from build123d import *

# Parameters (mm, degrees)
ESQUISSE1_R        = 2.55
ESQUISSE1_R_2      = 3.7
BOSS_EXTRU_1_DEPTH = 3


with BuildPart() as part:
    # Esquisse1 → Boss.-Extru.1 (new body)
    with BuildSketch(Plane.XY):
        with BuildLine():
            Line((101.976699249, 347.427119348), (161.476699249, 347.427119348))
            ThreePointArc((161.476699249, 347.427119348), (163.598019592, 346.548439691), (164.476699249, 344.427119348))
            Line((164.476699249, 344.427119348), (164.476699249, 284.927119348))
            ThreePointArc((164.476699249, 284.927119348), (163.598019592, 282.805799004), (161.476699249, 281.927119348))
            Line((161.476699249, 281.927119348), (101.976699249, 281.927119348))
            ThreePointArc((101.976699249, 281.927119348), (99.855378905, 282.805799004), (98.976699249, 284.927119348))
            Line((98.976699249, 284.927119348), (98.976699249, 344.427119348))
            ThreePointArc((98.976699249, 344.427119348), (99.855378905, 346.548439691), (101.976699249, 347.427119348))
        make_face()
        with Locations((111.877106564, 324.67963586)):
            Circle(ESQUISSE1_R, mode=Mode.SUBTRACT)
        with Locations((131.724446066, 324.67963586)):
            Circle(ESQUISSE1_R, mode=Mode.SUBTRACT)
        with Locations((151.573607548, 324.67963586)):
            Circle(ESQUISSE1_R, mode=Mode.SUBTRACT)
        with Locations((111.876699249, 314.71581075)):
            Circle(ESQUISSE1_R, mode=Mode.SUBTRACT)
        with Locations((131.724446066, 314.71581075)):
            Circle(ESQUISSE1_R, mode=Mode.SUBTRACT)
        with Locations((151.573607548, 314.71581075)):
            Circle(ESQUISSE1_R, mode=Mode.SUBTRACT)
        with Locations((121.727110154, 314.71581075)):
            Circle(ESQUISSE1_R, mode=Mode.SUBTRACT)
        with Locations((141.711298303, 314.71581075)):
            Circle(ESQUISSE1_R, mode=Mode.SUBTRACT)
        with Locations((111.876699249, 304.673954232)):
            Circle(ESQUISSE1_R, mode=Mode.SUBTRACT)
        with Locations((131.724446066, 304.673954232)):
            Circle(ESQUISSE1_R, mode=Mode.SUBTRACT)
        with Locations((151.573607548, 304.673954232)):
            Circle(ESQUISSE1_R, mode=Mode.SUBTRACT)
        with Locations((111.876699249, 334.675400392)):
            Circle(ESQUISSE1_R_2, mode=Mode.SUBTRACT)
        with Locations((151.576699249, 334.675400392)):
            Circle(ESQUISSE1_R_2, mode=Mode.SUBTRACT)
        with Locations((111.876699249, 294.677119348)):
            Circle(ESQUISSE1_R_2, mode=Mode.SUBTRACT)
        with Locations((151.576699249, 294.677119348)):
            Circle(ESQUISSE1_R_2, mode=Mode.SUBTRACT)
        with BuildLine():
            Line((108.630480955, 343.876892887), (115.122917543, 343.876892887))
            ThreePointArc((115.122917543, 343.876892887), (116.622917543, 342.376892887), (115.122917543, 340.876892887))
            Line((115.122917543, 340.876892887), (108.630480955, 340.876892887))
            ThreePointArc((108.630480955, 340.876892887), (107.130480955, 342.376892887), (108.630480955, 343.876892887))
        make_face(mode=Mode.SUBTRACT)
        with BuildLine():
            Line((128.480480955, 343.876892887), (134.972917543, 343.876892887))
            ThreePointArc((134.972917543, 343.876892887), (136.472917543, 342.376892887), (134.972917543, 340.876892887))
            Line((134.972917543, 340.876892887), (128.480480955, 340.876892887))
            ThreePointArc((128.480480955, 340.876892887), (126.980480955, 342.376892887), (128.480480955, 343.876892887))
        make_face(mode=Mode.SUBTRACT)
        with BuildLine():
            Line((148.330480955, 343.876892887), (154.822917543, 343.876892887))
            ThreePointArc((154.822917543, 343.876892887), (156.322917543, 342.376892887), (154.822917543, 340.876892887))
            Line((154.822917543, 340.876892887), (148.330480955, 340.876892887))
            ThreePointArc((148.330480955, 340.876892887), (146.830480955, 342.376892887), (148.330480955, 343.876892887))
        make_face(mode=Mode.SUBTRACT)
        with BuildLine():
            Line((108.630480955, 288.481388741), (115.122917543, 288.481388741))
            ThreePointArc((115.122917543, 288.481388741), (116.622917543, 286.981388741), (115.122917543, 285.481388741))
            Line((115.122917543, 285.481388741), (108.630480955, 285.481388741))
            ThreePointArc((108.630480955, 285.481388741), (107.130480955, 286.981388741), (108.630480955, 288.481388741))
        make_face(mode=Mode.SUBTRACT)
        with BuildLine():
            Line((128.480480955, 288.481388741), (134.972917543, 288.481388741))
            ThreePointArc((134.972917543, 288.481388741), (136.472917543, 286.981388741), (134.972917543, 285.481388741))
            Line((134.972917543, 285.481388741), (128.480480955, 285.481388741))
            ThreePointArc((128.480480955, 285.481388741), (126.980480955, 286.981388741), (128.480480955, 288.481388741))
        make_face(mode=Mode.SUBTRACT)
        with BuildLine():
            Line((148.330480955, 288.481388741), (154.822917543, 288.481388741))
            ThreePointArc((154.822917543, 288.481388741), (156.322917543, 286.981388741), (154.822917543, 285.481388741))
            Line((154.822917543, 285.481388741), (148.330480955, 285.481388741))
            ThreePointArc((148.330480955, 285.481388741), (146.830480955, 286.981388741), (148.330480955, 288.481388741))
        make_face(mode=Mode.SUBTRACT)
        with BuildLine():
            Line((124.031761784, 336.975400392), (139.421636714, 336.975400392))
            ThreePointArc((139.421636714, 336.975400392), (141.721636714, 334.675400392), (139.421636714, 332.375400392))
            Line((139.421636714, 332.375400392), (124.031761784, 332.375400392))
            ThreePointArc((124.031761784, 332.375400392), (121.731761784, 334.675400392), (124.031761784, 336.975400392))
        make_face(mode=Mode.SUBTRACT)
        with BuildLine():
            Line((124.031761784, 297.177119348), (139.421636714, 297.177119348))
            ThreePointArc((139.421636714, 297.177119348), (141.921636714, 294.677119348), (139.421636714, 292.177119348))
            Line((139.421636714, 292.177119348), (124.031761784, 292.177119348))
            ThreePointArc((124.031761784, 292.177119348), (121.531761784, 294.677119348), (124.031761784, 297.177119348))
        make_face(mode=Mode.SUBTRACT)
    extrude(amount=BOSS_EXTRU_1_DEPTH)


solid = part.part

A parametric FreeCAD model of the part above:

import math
import FreeCAD as App
import Part
import Sketcher
Q = App.Units.Quantity

doc = App.newDocument("Part")
body = doc.addObject("PartDesign::Body", "Body")

# Sketch on XY plane
sketch1 = doc.addObject("Sketcher::SketchObject", "Sketch")
body.addObject(sketch1)
sketch1.AttachmentSupport = (doc.XY_Plane, [""])
sketch1.MapMode = "FlatFace"
sketch1.addGeometry(Part.LineSegment(App.Vector(161.5, 347.4, 0), App.Vector(102, 347.4, 0)), False)
sketch1.addGeometry(Part.ArcOfCircle(Part.Circle(App.Vector(102, 344.4, 0), App.Vector(0, 0, 1), 3), math.radians(90), math.radians(180)), False)
sketch1.addGeometry(Part.LineSegment(App.Vector(99, 344.4, 0), App.Vector(99, 284.9, 0)), False)
sketch1.addGeometry(Part.ArcOfCircle(Part.Circle(App.Vector(102, 284.9, 0), App.Vector(0, 0, 1), 3), math.radians(180), math.radians(270)), False)
sketch1.addGeometry(Part.LineSegment(App.Vector(102, 281.9, 0), App.Vector(161.5, 281.9, 0)), False)
sketch1.addGeometry(Part.ArcOfCircle(Part.Circle(App.Vector(161.5, 284.9, 0), App.Vector(0, 0, 1), 3), math.radians(-90), math.radians(0)), False)
sketch1.addGeometry(Part.LineSegment(App.Vector(164.5, 284.9, 0), App.Vector(164.5, 344.4, 0)), False)
sketch1.addGeometry(Part.ArcOfCircle(Part.Circle(App.Vector(161.5, 344.4, 0), App.Vector(0, 0, 1), 3), math.radians(0), math.radians(90)), False)
sketch1.addGeometry(Part.LineSegment(App.Vector(148.3, 288.5, 0), App.Vector(154.8, 288.5, 0)), False)
sketch1.addGeometry(Part.ArcOfCircle(Part.Circle(App.Vector(154.8, 287, 0), App.Vector(0, 0, 1), 1.5), math.radians(-90), math.radians(90)), False)
sketch1.addGeometry(Part.LineSegment(App.Vector(154.8, 285.5, 0), App.Vector(148.3, 285.5, 0)), False)
sketch1.addGeometry(Part.ArcOfCircle(Part.Circle(App.Vector(148.3, 287, 0), App.Vector(0, 0, 1), 1.5), math.radians(90), math.radians(270)), False)
sketch1.addGeometry(Part.Circle(App.Vector(151.6, 294.7, 0), App.Vector(0, 0, 1), 3.7), False)
sketch1.addGeometry(Part.LineSegment(App.Vector(128.5, 288.5, 0), App.Vector(135, 288.5, 0)), False)
sketch1.addGeometry(Part.ArcOfCircle(Part.Circle(App.Vector(135, 287, 0), App.Vector(0, 0, 1), 1.5), math.radians(-90), math.radians(90)), False)
sketch1.addGeometry(Part.LineSegment(App.Vector(135, 285.5, 0), App.Vector(128.5, 285.5, 0)), False)
sketch1.addGeometry(Part.ArcOfCircle(Part.Circle(App.Vector(128.5, 287, 0), App.Vector(0, 0, 1), 1.5), math.radians(90), math.radians(270)), False)
sketch1.addGeometry(Part.LineSegment(App.Vector(124, 297.2, 0), App.Vector(139.4, 297.2, 0)), False)
sketch1.addGeometry(Part.ArcOfCircle(Part.Circle(App.Vector(139.4, 294.7, 0), App.Vector(0, 0, 1), 2.5), math.radians(-90), math.radians(90)), False)
sketch1.addGeometry(Part.LineSegment(App.Vector(139.4, 292.2, 0), App.Vector(124, 292.2, 0)), False)
sketch1.addGeometry(Part.ArcOfCircle(Part.Circle(App.Vector(124, 294.7, 0), App.Vector(0, 0, 1), 2.5), math.radians(90), math.radians(270)), False)
sketch1.addGeometry(Part.Circle(App.Vector(151.6, 304.7, 0), App.Vector(0, 0, 1), 2.5), False)
sketch1.addGeometry(Part.LineSegment(App.Vector(108.6, 288.5, 0), App.Vector(115.1, 288.5, 0)), False)
sketch1.addGeometry(Part.ArcOfCircle(Part.Circle(App.Vector(115.1, 287, 0), App.Vector(0, 0, 1), 1.5), math.radians(-90), math.radians(90)), False)
sketch1.addGeometry(Part.LineSegment(App.Vector(115.1, 285.5, 0), App.Vector(108.6, 285.5, 0)), False)
sketch1.addGeometry(Part.ArcOfCircle(Part.Circle(App.Vector(108.6, 287, 0), App.Vector(0, 0, 1), 1.5), math.radians(90), math.radians(270)), False)
sketch1.addGeometry(Part.Circle(App.Vector(111.9, 294.7, 0), App.Vector(0, 0, 1), 3.7), False)
sketch1.addGeometry(Part.Circle(App.Vector(131.7, 304.7, 0), App.Vector(0, 0, 1), 2.5), False)
sketch1.addGeometry(Part.Circle(App.Vector(111.9, 304.7, 0), App.Vector(0, 0, 1), 2.5), False)
sketch1.addGeometry(Part.Circle(App.Vector(151.6, 314.7, 0), App.Vector(0, 0, 1), 2.5), False)
sketch1.addGeometry(Part.Circle(App.Vector(151.6, 324.7, 0), App.Vector(0, 0, 1), 2.5), False)
sketch1.addGeometry(Part.Circle(App.Vector(141.7, 314.7, 0), App.Vector(0, 0, 1), 2.5), False)
sketch1.addGeometry(Part.Circle(App.Vector(151.6, 334.7, 0), App.Vector(0, 0, 1), 3.7), False)
sketch1.addGeometry(Part.LineSegment(App.Vector(148.3, 343.9, 0), App.Vector(154.8, 343.9, 0)), False)
sketch1.addGeometry(Part.ArcOfCircle(Part.Circle(App.Vector(154.8, 342.4, 0), App.Vector(0, 0, 1), 1.5), math.radians(-90), math.radians(90)), False)
sketch1.addGeometry(Part.LineSegment(App.Vector(154.8, 340.9, 0), App.Vector(148.3, 340.9, 0)), False)
sketch1.addGeometry(Part.ArcOfCircle(Part.Circle(App.Vector(148.3, 342.4, 0), App.Vector(0, 0, 1), 1.5), math.radians(90), math.radians(270)), False)
sketch1.addGeometry(Part.LineSegment(App.Vector(124, 337, 0), App.Vector(139.4, 337, 0)), False)
sketch1.addGeometry(Part.ArcOfCircle(Part.Circle(App.Vector(139.4, 334.7, 0), App.Vector(0, 0, 1), 2.3), math.radians(-90), math.radians(90)), False)
sketch1.addGeometry(Part.LineSegment(App.Vector(139.4, 332.4, 0), App.Vector(124, 332.4, 0)), False)
sketch1.addGeometry(Part.ArcOfCircle(Part.Circle(App.Vector(124, 334.7, 0), App.Vector(0, 0, 1), 2.3), math.radians(90), math.radians(270)), False)
sketch1.addGeometry(Part.LineSegment(App.Vector(128.5, 343.9, 0), App.Vector(135, 343.9, 0)), False)
sketch1.addGeometry(Part.ArcOfCircle(Part.Circle(App.Vector(135, 342.4, 0), App.Vector(0, 0, 1), 1.5), math.radians(-90), math.radians(90)), False)
sketch1.addGeometry(Part.LineSegment(App.Vector(135, 340.9, 0), App.Vector(128.5, 340.9, 0)), False)
sketch1.addGeometry(Part.ArcOfCircle(Part.Circle(App.Vector(128.5, 342.4, 0), App.Vector(0, 0, 1), 1.5), math.radians(90), math.radians(270)), False)
sketch1.addGeometry(Part.Circle(App.Vector(131.7, 314.7, 0), App.Vector(0, 0, 1), 2.5), False)
sketch1.addGeometry(Part.Circle(App.Vector(121.7, 314.7, 0), App.Vector(0, 0, 1), 2.5), False)
sketch1.addGeometry(Part.Circle(App.Vector(131.7, 324.7, 0), App.Vector(0, 0, 1), 2.5), False)
sketch1.addGeometry(Part.Circle(App.Vector(111.9, 314.7, 0), App.Vector(0, 0, 1), 2.5), False)
sketch1.addGeometry(Part.Circle(App.Vector(111.9, 324.7, 0), App.Vector(0, 0, 1), 2.5), False)
sketch1.addGeometry(Part.Circle(App.Vector(111.9, 334.7, 0), App.Vector(0, 0, 1), 3.7), False)
sketch1.addGeometry(Part.LineSegment(App.Vector(108.6, 343.9, 0), App.Vector(115.1, 343.9, 0)), False)
sketch1.addGeometry(Part.ArcOfCircle(Part.Circle(App.Vector(115.1, 342.4, 0), App.Vector(0, 0, 1), 1.5), math.radians(-90), math.radians(90)), False)
sketch1.addGeometry(Part.LineSegment(App.Vector(115.1, 340.9, 0), App.Vector(108.6, 340.9, 0)), False)
sketch1.addGeometry(Part.ArcOfCircle(Part.Circle(App.Vector(108.6, 342.4, 0), App.Vector(0, 0, 1), 1.5), math.radians(90), math.radians(270)), False)
sketch1.addConstraint(Sketcher.Constraint("Tangent", 0, 2, 1, 1))
sketch1.addConstraint(Sketcher.Constraint("Tangent", 1, 2, 2, 1))
sketch1.addConstraint(Sketcher.Constraint("Tangent", 2, 2, 3, 1))
sketch1.addConstraint(Sketcher.Constraint("Tangent", 3, 2, 4, 1))
sketch1.addConstraint(Sketcher.Constraint("Tangent", 4, 2, 5, 1))
sketch1.addConstraint(Sketcher.Constraint("Tangent", 5, 2, 6, 1))
sketch1.addConstraint(Sketcher.Constraint("Tangent", 6, 2, 7, 1))
sketch1.addConstraint(Sketcher.Constraint("Tangent", 7, 2, 0, 1))
sketch1.addConstraint(Sketcher.Constraint("Tangent", 8, 2, 9, 2))
sketch1.addConstraint(Sketcher.Constraint("Tangent", 9, 1, 10, 1))
sketch1.addConstraint(Sketcher.Constraint("Tangent", 10, 2, 11, 2))
sketch1.addConstraint(Sketcher.Constraint("Tangent", 11, 1, 8, 1))
sketch1.addConstraint(Sketcher.Constraint("Tangent", 13, 2, 14, 2))
sketch1.addConstraint(Sketcher.Constraint("Tangent", 14, 1, 15, 1))
sketch1.addConstraint(Sketcher.Constraint("Tangent", 15, 2, 16, 2))
sketch1.addConstraint(Sketcher.Constraint("Tangent", 16, 1, 13, 1))
sketch1.addConstraint(Sketcher.Constraint("Tangent", 17, 2, 18, 2))
sketch1.addConstraint(Sketcher.Constraint("Tangent", 18, 1, 19, 1))
sketch1.addConstraint(Sketcher.Constraint("Tangent", 19, 2, 20, 2))
sketch1.addConstraint(Sketcher.Constraint("Tangent", 20, 1, 17, 1))
sketch1.addConstraint(Sketcher.Constraint("Tangent", 22, 2, 23, 2))
sketch1.addConstraint(Sketcher.Constraint("Tangent", 23, 1, 24, 1))
sketch1.addConstraint(Sketcher.Constraint("Tangent", 24, 2, 25, 2))
sketch1.addConstraint(Sketcher.Constraint("Tangent", 25, 1, 22, 1))
sketch1.addConstraint(Sketcher.Constraint("Tangent", 33, 2, 34, 2))
sketch1.addConstraint(Sketcher.Constraint("Tangent", 34, 1, 35, 1))
sketch1.addConstraint(Sketcher.Constraint("Tangent", 35, 2, 36, 2))
sketch1.addConstraint(Sketcher.Constraint("Tangent", 36, 1, 33, 1))
sketch1.addConstraint(Sketcher.Constraint("Tangent", 37, 2, 38, 2))
sketch1.addConstraint(Sketcher.Constraint("Tangent", 38, 1, 39, 1))
sketch1.addConstraint(Sketcher.Constraint("Tangent", 39, 2, 40, 2))
sketch1.addConstraint(Sketcher.Constraint("Tangent", 40, 1, 37, 1))
sketch1.addConstraint(Sketcher.Constraint("Tangent", 41, 2, 42, 2))
sketch1.addConstraint(Sketcher.Constraint("Tangent", 42, 1, 43, 1))
sketch1.addConstraint(Sketcher.Constraint("Tangent", 43, 2, 44, 2))
sketch1.addConstraint(Sketcher.Constraint("Tangent", 44, 1, 41, 1))
sketch1.addConstraint(Sketcher.Constraint("Tangent", 51, 2, 52, 2))
sketch1.addConstraint(Sketcher.Constraint("Tangent", 52, 1, 53, 1))
sketch1.addConstraint(Sketcher.Constraint("Tangent", 53, 2, 54, 2))
sketch1.addConstraint(Sketcher.Constraint("Tangent", 54, 1, 51, 1))
sketch1.addConstraint(Sketcher.Constraint("Horizontal", 0))
sketch1.addConstraint(Sketcher.Constraint("Vertical", 2))
sketch1.addConstraint(Sketcher.Constraint("Horizontal", 4))
sketch1.addConstraint(Sketcher.Constraint("Vertical", 6))
sketch1.addConstraint(Sketcher.Constraint("Horizontal", 8))
sketch1.addConstraint(Sketcher.Constraint("Horizontal", 10))
sketch1.addConstraint(Sketcher.Constraint("Horizontal", 13))
sketch1.addConstraint(Sketcher.Constraint("Horizontal", 15))
sketch1.addConstraint(Sketcher.Constraint("Horizontal", 17))
sketch1.addConstraint(Sketcher.Constraint("Horizontal", 19))
sketch1.addConstraint(Sketcher.Constraint("Horizontal", 22))
sketch1.addConstraint(Sketcher.Constraint("Horizontal", 24))
sketch1.addConstraint(Sketcher.Constraint("Horizontal", 33))
sketch1.addConstraint(Sketcher.Constraint("Horizontal", 35))
sketch1.addConstraint(Sketcher.Constraint("Horizontal", 37))
sketch1.addConstraint(Sketcher.Constraint("Horizontal", 39))
sketch1.addConstraint(Sketcher.Constraint("Horizontal", 41))
sketch1.addConstraint(Sketcher.Constraint("Horizontal", 43))
sketch1.addConstraint(Sketcher.Constraint("Horizontal", 51))
sketch1.addConstraint(Sketcher.Constraint("Horizontal", 53))
sketch1.addConstraint(Sketcher.Constraint("Equal", 1, 3))
sketch1.addConstraint(Sketcher.Constraint("Equal", 3, 5))
sketch1.addConstraint(Sketcher.Constraint("Equal", 5, 7))
sketch1.addConstraint(Sketcher.Constraint("Equal", 11, 14))
sketch1.addConstraint(Sketcher.Constraint("Equal", 16, 23))
sketch1.addConstraint(Sketcher.Constraint("Equal", 12, 26))
sketch1.addConstraint(Sketcher.Constraint("Equal", 21, 27))
sketch1.addConstraint(Sketcher.Constraint("Equal", 27, 28))
sketch1.addConstraint(Sketcher.Constraint("Equal", 28, 29))
sketch1.addConstraint(Sketcher.Constraint("Equal", 29, 30))
sketch1.addConstraint(Sketcher.Constraint("Equal", 30, 31))
sketch1.addConstraint(Sketcher.Constraint("Equal", 26, 32))
sketch1.addConstraint(Sketcher.Constraint("Equal", 25, 34))
sketch1.addConstraint(Sketcher.Constraint("Equal", 36, 42))
sketch1.addConstraint(Sketcher.Constraint("Equal", 31, 45))
sketch1.addConstraint(Sketcher.Constraint("Equal", 45, 46))
sketch1.addConstraint(Sketcher.Constraint("Equal", 46, 47))
sketch1.addConstraint(Sketcher.Constraint("Equal", 47, 48))
sketch1.addConstraint(Sketcher.Constraint("Equal", 48, 49))
sketch1.addConstraint(Sketcher.Constraint("Equal", 32, 50))
sketch1.addConstraint(Sketcher.Constraint("Equal", 44, 52))
sketch1.addConstraint(Sketcher.Constraint("Horizontal", 11, 3, 14, 3))
sketch1.addConstraint(Sketcher.Constraint("Horizontal", 12, 3, 18, 3))
sketch1.addConstraint(Sketcher.Constraint("Horizontal", 16, 3, 23, 3))
sketch1.addConstraint(Sketcher.Constraint("Horizontal", 20, 3, 26, 3))
sketch1.addConstraint(Sketcher.Constraint("Horizontal", 21, 3, 27, 3))
sketch1.addConstraint(Sketcher.Constraint("Horizontal", 27, 3, 28, 3))
sketch1.addConstraint(Sketcher.Constraint("Horizontal", 29, 3, 31, 3))
sketch1.addConstraint(Sketcher.Constraint("Horizontal", 32, 3, 38, 3))
sketch1.addConstraint(Sketcher.Constraint("Horizontal", 36, 3, 42, 3))
sketch1.addConstraint(Sketcher.Constraint("Horizontal", 31, 3, 45, 3))
sketch1.addConstraint(Sketcher.Constraint("Horizontal", 45, 3, 46, 3))
sketch1.addConstraint(Sketcher.Constraint("Horizontal", 30, 3, 47, 3))
sketch1.addConstraint(Sketcher.Constraint("Horizontal", 46, 3, 48, 3))
sketch1.addConstraint(Sketcher.Constraint("Horizontal", 47, 3, 49, 3))
sketch1.addConstraint(Sketcher.Constraint("Horizontal", 40, 3, 50, 3))
sketch1.addConstraint(Sketcher.Constraint("Horizontal", 44, 3, 52, 3))
sketch1.addConstraint(Sketcher.Constraint("Vertical", 26, 3, 28, 3))
sketch1.addConstraint(Sketcher.Constraint("Vertical", 21, 3, 29, 3))
sketch1.addConstraint(Sketcher.Constraint("Vertical", 29, 3, 30, 3))
sketch1.addConstraint(Sketcher.Constraint("Vertical", 12, 3, 32, 3))
sketch1.addConstraint(Sketcher.Constraint("Vertical", 9, 3, 34, 3))
sketch1.addConstraint(Sketcher.Constraint("Vertical", 11, 3, 36, 3))
sketch1.addConstraint(Sketcher.Constraint("Vertical", 18, 3, 38, 3))
sketch1.addConstraint(Sketcher.Constraint("Vertical", 20, 3, 40, 3))
sketch1.addConstraint(Sketcher.Constraint("Vertical", 14, 3, 42, 3))
sketch1.addConstraint(Sketcher.Constraint("Vertical", 16, 3, 44, 3))
sketch1.addConstraint(Sketcher.Constraint("Vertical", 27, 3, 45, 3))
sketch1.addConstraint(Sketcher.Constraint("Vertical", 45, 3, 47, 3))
sketch1.addConstraint(Sketcher.Constraint("Vertical", 28, 3, 48, 3))
sketch1.addConstraint(Sketcher.Constraint("Vertical", 48, 3, 50, 3))
sketch1.addConstraint(Sketcher.Constraint("Vertical", 23, 3, 52, 3))
sketch1.addConstraint(Sketcher.Constraint("Vertical", 25, 3, 54, 3))
sketch1.addConstraint(Sketcher.Constraint("Equal", 10, 13))
sketch1.addConstraint(Sketcher.Constraint("Equal", 15, 22))
sketch1.addConstraint(Sketcher.Constraint("Equal", 4, 2))
sketch1.addConstraint(Sketcher.Constraint("Radius", 1, Q("3 mm")))
sketch1.addConstraint(Sketcher.Constraint("Diameter", 12, Q("7.4 mm")))
sketch1.addConstraint(Sketcher.Constraint("Diameter", 21, Q("5.1 mm")))
sketch1.addConstraint(Sketcher.Constraint("Radius", 9, Q("1.5 mm")))
sketch1.addConstraint(Sketcher.Constraint("Radius", 18, Q("2.5 mm")))
sketch1.addConstraint(Sketcher.Constraint("Radius", 38, Q("2.3 mm")))
sketch1.addConstraint(Sketcher.Constraint("DistanceX", 0, 2, 0, 1, Q("59.5 mm")))
sketch1.addConstraint(Sketcher.Constraint("DistanceX", -1, 1, 1, 3, Q("101.976699 mm")))
sketch1.addConstraint(Sketcher.Constraint("DistanceX", -1, 1, 12, 3, Q("151.576699 mm")))
sketch1.addConstraint(Sketcher.Constraint("DistanceX", -1, 1, 26, 3, Q("111.876699 mm")))
sketch1.addConstraint(Sketcher.Constraint("DistanceX", -1, 1, 31, 3, Q("141.711298 mm")))
sketch1.addConstraint(Sketcher.Constraint("DistanceY", -1, 1, 32, 3, Q("334.6754 mm")))
sketch1.addConstraint(Sketcher.Constraint("DistanceX", 8, 1, 8, 2, Q("6.492437 mm")))
sketch1.addConstraint(Sketcher.Constraint("DistanceX", 17, 1, 17, 2, Q("15.389875 mm")))
sketch1.addConstraint(Sketcher.Constraint("DistanceY", -1, 1, 1, 3, Q("344.427119 mm")))
sketch1.addConstraint(Sketcher.Constraint("DistanceY", -1, 1, 9, 3, Q("286.981389 mm")))
sketch1.addConstraint(Sketcher.Constraint("DistanceX", -1, 1, 11, 3, Q("148.330481 mm")))
sketch1.addConstraint(Sketcher.Constraint("DistanceY", -1, 1, 12, 3, Q("294.677119 mm")))
sketch1.addConstraint(Sketcher.Constraint("DistanceX", -1, 1, 16, 3, Q("128.480481 mm")))
sketch1.addConstraint(Sketcher.Constraint("DistanceX", -1, 1, 20, 3, Q("124.031762 mm")))
sketch1.addConstraint(Sketcher.Constraint("DistanceX", -1, 1, 25, 3, Q("108.630481 mm")))
sketch1.addConstraint(Sketcher.Constraint("DistanceY", -1, 1, 29, 3, Q("314.715811 mm")))
sketch1.addConstraint(Sketcher.Constraint("DistanceX", -1, 1, 46, 3, Q("121.72711 mm")))
sketch1.addConstraint(Sketcher.Constraint("DistanceX", -1, 1, 21, 3, Q("151.573608 mm")))
sketch1.addConstraint(Sketcher.Constraint("DistanceY", -1, 1, 21, 3, Q("304.673954 mm")))
sketch1.addConstraint(Sketcher.Constraint("DistanceX", -1, 1, 27, 3, Q("131.724446 mm")))
sketch1.addConstraint(Sketcher.Constraint("DistanceY", -1, 1, 30, 3, Q("324.679636 mm")))
sketch1.addConstraint(Sketcher.Constraint("DistanceY", -1, 1, 34, 3, Q("342.376893 mm")))
sketch1.addConstraint(Sketcher.Constraint("DistanceX", -1, 1, 49, 3, Q("111.877107 mm")))
pad1 = doc.addObject("PartDesign::Pad", "Pad")
body.addObject(pad1)
pad1.Profile = sketch1
pad1.Length = 3

doc.recompute()
